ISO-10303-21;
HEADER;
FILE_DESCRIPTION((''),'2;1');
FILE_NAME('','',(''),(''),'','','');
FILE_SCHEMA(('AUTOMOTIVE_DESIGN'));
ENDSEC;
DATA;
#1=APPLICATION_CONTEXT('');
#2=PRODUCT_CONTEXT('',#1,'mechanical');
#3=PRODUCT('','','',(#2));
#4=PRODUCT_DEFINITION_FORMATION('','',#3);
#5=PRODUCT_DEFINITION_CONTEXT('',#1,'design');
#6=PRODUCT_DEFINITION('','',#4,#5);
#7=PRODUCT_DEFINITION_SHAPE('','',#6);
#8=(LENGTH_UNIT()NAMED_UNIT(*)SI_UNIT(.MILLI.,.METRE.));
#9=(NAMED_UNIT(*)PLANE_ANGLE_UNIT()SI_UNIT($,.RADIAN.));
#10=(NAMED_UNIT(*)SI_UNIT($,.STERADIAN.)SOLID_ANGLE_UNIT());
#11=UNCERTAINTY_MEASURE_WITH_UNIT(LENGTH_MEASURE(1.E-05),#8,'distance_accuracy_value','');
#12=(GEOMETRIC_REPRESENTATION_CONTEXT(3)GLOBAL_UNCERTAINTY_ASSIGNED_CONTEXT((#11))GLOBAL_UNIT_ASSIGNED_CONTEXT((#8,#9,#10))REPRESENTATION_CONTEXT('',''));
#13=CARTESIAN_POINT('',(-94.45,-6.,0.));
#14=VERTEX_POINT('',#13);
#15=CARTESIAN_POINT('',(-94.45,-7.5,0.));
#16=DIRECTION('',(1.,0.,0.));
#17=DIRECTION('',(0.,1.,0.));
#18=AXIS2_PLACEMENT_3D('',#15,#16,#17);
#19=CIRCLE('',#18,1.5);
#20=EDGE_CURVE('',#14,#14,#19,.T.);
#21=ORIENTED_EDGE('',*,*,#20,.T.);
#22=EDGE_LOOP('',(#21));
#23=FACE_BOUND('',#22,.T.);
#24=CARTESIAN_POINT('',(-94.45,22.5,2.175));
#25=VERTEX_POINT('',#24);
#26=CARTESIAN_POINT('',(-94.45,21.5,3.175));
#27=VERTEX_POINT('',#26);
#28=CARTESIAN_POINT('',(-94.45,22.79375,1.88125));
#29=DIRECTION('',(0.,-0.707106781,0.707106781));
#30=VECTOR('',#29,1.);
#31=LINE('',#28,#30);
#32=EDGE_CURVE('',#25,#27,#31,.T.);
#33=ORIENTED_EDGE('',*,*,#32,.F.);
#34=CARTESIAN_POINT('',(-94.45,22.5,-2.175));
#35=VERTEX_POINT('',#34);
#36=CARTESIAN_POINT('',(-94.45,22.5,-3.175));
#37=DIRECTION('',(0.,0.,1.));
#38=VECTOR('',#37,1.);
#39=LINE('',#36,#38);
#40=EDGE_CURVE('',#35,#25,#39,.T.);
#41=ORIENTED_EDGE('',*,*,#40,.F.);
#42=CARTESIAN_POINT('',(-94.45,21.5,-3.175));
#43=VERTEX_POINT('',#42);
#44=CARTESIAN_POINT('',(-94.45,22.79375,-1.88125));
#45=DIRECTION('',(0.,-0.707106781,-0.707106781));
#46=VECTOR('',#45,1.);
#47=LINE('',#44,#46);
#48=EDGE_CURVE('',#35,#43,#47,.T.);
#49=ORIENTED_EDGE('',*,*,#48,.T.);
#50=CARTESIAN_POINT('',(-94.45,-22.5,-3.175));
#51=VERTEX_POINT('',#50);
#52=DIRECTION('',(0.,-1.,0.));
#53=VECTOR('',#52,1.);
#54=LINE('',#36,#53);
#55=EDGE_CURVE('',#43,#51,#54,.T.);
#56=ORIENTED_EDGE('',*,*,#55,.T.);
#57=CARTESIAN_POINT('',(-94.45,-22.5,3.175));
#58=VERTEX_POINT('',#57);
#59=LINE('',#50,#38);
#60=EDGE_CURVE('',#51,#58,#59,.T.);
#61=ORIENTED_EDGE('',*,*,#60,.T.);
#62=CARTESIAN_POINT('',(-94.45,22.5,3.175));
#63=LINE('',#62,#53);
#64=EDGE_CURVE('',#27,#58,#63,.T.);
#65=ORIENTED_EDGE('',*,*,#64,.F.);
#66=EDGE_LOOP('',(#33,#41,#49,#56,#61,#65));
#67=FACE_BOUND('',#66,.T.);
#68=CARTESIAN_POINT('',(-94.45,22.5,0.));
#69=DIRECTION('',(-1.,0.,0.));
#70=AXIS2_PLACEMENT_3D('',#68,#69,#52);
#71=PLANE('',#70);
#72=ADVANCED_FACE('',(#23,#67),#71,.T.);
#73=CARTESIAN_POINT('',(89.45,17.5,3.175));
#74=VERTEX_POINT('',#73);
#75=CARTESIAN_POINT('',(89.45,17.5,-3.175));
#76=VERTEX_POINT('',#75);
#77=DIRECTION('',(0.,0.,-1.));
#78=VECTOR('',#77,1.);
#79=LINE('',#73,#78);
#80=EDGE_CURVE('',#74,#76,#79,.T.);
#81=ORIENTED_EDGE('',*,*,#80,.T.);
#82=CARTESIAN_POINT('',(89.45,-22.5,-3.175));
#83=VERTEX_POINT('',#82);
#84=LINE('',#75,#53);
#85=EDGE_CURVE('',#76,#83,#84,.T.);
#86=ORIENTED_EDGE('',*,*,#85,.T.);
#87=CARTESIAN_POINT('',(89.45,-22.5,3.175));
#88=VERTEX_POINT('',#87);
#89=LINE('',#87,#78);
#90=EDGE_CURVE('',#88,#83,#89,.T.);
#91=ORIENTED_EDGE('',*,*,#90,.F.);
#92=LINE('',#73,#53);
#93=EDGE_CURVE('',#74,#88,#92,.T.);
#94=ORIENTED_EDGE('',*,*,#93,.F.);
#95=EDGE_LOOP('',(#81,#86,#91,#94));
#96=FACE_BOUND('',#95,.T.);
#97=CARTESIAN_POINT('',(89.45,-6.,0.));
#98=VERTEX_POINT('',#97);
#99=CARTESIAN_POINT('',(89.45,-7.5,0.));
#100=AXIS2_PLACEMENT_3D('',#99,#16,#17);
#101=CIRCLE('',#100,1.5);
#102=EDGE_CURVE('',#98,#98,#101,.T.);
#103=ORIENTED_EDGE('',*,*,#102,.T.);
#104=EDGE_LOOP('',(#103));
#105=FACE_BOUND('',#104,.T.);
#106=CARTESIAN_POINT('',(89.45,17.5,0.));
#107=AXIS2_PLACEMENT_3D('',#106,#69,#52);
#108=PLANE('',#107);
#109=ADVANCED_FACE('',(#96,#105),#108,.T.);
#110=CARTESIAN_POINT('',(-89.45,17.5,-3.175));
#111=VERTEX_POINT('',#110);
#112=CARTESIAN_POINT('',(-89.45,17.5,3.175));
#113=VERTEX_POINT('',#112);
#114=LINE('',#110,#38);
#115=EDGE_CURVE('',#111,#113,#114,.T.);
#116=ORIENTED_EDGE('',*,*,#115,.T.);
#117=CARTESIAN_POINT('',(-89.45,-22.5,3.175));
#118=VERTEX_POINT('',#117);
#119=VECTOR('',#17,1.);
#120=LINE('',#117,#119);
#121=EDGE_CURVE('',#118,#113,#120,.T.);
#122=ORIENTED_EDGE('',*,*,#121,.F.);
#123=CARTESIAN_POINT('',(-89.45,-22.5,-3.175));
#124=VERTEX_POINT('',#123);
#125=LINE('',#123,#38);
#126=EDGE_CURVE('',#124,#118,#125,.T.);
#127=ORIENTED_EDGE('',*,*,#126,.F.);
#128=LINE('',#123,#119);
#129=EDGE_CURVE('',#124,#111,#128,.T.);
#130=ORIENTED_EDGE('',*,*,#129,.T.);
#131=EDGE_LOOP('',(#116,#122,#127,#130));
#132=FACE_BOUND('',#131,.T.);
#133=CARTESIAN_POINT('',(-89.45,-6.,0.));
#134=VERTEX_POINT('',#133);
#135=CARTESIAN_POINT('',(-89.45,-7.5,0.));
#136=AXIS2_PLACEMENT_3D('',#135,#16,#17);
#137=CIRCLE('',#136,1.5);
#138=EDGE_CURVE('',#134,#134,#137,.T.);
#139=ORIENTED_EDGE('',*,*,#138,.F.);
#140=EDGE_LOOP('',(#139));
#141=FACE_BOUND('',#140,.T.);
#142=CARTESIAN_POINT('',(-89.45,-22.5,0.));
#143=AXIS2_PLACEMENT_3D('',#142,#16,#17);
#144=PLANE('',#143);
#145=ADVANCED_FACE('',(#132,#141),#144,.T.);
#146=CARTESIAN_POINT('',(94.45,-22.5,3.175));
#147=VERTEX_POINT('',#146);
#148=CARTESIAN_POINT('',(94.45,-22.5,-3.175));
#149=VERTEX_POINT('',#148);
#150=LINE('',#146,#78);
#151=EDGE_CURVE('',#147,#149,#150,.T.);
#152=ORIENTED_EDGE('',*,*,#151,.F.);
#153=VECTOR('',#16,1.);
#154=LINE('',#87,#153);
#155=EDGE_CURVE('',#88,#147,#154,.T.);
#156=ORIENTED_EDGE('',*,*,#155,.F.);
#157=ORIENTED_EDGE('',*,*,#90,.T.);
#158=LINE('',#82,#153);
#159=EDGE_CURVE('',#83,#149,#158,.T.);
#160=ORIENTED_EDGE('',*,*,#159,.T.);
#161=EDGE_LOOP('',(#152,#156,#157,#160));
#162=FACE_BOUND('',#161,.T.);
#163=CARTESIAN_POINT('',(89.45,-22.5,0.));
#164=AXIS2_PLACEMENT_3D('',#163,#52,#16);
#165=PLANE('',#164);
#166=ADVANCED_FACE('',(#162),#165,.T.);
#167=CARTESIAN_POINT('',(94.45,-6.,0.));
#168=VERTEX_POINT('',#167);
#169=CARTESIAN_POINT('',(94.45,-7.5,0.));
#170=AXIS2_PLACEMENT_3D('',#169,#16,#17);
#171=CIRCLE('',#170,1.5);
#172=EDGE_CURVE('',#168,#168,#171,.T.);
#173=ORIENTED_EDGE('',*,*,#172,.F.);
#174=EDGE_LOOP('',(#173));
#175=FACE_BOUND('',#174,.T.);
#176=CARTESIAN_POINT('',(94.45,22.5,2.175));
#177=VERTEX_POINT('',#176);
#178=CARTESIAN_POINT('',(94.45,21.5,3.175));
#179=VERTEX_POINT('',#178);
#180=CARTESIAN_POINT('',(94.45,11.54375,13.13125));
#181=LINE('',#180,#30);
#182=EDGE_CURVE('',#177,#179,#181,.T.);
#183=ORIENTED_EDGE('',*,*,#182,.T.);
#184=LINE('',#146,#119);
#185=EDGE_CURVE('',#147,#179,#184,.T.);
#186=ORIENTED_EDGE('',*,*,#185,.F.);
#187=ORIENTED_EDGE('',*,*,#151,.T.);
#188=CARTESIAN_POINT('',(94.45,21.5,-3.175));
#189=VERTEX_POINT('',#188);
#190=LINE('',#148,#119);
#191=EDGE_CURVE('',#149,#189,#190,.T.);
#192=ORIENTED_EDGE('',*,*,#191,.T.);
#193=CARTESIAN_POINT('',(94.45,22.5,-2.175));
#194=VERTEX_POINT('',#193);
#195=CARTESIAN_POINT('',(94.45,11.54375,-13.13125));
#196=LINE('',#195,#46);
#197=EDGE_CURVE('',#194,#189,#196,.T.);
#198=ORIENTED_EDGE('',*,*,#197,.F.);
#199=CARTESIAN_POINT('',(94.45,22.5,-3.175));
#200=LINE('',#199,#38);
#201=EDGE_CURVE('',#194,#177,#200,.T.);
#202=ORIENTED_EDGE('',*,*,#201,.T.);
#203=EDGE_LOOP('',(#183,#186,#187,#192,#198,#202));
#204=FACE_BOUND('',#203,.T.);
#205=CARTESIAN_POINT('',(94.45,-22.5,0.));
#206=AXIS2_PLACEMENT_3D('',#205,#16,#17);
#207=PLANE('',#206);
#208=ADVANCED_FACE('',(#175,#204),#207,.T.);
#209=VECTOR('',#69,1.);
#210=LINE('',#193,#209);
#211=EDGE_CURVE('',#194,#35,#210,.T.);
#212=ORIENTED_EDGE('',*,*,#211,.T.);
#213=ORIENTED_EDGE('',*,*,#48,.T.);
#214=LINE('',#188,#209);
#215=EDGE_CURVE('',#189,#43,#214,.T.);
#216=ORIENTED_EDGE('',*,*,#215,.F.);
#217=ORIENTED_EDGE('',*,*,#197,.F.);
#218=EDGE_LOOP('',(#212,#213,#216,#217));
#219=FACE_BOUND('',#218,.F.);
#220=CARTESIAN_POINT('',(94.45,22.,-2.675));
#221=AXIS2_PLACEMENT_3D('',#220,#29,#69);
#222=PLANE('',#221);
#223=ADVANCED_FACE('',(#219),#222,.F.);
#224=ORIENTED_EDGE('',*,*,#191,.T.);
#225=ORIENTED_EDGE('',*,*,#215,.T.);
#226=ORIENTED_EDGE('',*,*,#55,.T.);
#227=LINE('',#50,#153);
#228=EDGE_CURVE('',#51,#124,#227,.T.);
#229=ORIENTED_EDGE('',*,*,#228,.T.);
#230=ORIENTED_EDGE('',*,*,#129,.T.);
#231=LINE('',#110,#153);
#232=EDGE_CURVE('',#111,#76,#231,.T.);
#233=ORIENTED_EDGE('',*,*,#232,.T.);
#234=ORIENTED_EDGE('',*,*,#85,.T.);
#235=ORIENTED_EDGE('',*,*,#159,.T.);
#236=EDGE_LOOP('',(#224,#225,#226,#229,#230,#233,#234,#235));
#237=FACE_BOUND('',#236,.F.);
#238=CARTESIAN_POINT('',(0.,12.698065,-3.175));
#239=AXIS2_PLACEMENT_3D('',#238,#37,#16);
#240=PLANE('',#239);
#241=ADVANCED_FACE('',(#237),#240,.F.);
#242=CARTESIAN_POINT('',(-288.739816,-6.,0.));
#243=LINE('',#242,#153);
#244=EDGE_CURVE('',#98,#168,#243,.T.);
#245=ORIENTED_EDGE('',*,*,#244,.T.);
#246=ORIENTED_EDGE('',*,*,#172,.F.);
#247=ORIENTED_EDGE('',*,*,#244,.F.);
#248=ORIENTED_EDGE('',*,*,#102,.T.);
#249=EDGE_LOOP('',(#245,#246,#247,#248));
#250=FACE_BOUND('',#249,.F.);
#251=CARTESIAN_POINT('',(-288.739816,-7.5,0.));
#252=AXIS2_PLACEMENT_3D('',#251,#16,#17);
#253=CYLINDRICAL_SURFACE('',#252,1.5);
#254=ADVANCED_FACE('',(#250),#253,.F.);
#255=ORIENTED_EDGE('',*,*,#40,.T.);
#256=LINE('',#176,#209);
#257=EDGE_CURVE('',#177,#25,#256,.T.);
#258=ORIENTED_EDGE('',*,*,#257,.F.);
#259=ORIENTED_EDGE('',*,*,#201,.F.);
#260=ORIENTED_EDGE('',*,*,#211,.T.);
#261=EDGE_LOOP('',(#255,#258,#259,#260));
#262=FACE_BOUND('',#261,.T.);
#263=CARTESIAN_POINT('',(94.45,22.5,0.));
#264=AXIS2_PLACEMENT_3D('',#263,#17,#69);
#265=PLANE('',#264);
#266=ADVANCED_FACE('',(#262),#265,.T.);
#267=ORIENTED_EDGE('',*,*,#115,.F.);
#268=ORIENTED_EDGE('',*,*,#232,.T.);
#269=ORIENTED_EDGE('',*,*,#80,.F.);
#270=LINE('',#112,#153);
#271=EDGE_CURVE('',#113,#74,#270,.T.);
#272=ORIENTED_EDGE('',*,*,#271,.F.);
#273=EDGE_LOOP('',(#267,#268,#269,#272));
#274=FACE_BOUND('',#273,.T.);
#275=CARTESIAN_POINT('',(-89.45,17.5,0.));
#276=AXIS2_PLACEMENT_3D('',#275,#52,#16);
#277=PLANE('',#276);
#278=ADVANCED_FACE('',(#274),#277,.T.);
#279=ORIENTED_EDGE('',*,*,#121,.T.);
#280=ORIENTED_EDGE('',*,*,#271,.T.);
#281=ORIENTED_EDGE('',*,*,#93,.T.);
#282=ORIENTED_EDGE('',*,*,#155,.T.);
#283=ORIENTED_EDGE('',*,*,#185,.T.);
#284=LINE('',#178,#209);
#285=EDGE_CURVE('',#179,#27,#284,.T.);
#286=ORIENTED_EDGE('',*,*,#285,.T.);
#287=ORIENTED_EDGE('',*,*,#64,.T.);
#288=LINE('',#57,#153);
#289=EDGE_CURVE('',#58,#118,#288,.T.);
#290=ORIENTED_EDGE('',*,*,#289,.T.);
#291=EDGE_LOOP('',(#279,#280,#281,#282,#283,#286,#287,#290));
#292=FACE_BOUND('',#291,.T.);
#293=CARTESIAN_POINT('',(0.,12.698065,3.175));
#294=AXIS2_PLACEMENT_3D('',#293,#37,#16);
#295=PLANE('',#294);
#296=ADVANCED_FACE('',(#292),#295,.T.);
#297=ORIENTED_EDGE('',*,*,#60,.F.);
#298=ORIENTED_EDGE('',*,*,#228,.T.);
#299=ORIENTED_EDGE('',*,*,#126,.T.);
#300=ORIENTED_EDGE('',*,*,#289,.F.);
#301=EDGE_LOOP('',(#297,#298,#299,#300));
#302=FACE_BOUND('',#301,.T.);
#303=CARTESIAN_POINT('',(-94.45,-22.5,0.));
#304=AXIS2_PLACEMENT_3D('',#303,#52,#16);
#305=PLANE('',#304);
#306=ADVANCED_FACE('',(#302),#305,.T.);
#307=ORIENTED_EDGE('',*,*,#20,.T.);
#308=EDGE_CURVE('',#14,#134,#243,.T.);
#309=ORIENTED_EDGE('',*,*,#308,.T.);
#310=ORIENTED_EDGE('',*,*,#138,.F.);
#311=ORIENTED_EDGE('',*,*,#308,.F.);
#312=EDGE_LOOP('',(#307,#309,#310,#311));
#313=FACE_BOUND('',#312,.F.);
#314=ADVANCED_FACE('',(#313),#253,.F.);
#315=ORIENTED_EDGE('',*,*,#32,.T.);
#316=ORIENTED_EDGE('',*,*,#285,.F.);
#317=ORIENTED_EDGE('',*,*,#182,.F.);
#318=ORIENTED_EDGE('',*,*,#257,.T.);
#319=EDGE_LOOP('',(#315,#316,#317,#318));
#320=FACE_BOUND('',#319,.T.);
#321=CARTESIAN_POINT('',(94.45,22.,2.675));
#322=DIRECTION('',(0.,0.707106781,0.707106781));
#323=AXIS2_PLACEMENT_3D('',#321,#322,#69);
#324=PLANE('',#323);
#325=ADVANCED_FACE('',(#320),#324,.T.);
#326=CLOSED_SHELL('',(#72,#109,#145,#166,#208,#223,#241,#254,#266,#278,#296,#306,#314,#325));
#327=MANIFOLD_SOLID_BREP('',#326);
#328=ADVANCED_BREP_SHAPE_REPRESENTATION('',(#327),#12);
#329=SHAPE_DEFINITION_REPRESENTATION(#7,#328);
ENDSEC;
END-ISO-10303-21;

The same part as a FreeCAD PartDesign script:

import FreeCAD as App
import Part
import Sketcher
Q = App.Units.Quantity


def edges_at(feature, points):
    """Names of the edges that pass closest to the given points."""
    edges = feature.Shape.Edges
    near = lambda p: min(range(len(edges)), key=lambda i: edges[i].distToShape(Part.Vertex(*p))[0])
    return sorted({f"Edge{near(p) + 1}" for p in points})

doc = App.newDocument("Part")
body = doc.addObject("PartDesign::Body", "Body")

sketch1 = doc.addObject("Sketcher::SketchObject", "Sketch")
body.addObject(sketch1)
sketch1.AttachmentSupport = (doc.XY_Plane, [""])
sketch1.MapMode = "FlatFace"
sketch1.addGeometry([
    Part.LineSegment(App.Vector(94, -22, 0), App.Vector(94, 22, 0)),
    Part.LineSegment(App.Vector(94, 22, 0), App.Vector(-94, 22, 0)),
    Part.LineSegment(App.Vector(-94, 22, 0), App.Vector(-94, -22, 0)),
    Part.LineSegment(App.Vector(-94, -22, 0), App.Vector(-89, -22, 0)),
    Part.LineSegment(App.Vector(-89, -22, 0), App.Vector(-89, 18, 0)),
    Part.LineSegment(App.Vector(-89, 18, 0), App.Vector(89, 18, 0)),
    Part.LineSegment(App.Vector(89, 18, 0), App.Vector(89, -22, 0)),
    Part.LineSegment(App.Vector(89, -22, 0), App.Vector(94, -22, 0)),
], False)
sketch1.addConstraint([
    Sketcher.Constraint("Coincident", 0, 2, 1, 1),
    Sketcher.Constraint("Coincident", 1, 2, 2, 1),
    Sketcher.Constraint("Coincident", 2, 2, 3, 1),
    Sketcher.Constraint("Coincident", 3, 2, 4, 1),
    Sketcher.Constraint("Coincident", 4, 2, 5, 1),
    Sketcher.Constraint("Coincident", 5, 2, 6, 1),
    Sketcher.Constraint("Coincident", 6, 2, 7, 1),
    Sketcher.Constraint("Coincident", 7, 2, 0, 1),
    Sketcher.Constraint("Vertical", 0),
    Sketcher.Constraint("Horizontal", 1),
    Sketcher.Constraint("Vertical", 2),
    Sketcher.Constraint("Horizontal", 3),
    Sketcher.Constraint("Vertical", 4),
    Sketcher.Constraint("Horizontal", 5),
    Sketcher.Constraint("Vertical", 6),
    Sketcher.Constraint("Horizontal", 7),
    Sketcher.Constraint("Symmetric", 0, 2, 2, 2, -1, 1),
    Sketcher.Constraint("Symmetric", 3, 2, 6, 2, -2),
    Sketcher.Constraint("DistanceX", 3, 1, 3, 2, Q("5 mm")),
    Sketcher.Constraint("DistanceY", 0, 1, 0, 2, Q("45 mm")),
    Sketcher.Constraint("DistanceY", 4, 1, 4, 2, Q("40 mm")),
    Sketcher.Constraint("DistanceX", 1, 2, 1, 1, Q("188.9 mm")),
])
pad1 = doc.addObject("PartDesign::Pad", "Pad")
body.addObject(pad1)
pad1.Profile = sketch1
pad1.Length = 6.35
pad1.Midplane = True

sketch2 = doc.addObject("Sketcher::SketchObject", "Sketch001")
body.addObject(sketch2)
sketch2.AttachmentSupport = (doc.YZ_Plane, [""])
sketch2.MapMode = "FlatFace"
sketch2.AttachmentOffset = App.Placement(App.Vector(0, 0, -94.45), App.Rotation())
sketch2.addGeometry(Part.Circle(App.Vector(-7.5, 0, 0), App.Vector(0, 0, 1), 1.5), False)
sketch2.addConstraint([
    Sketcher.Constraint("PointOnObject", 0, 3, -1),
    Sketcher.Constraint("Diameter", 0, Q("3 mm")),
    Sketcher.Constraint("DistanceX", 0, 3, -1, 1, Q("7.5 mm")),
])
doc.recompute()
hole = doc.addObject("PartDesign::Hole", "Hole")
body.addObject(hole)
hole.Profile = sketch2
hole.ThreadType = "None"
hole.Diameter = 3
hole.DepthType = "ThroughAll"
hole.Reversed = True
doc.recompute()

chamfer = doc.addObject("PartDesign::Chamfer", "Chamfer")
body.addObject(chamfer)
chamfer.Base = (hole, edges_at(hole, [(0, 22.5, 3.175)]))
chamfer.ChamferType = "Two distances"
chamfer.Size = 1
chamfer.Size2 = 1
doc.recompute()

chamfer2 = doc.addObject("PartDesign::Chamfer", "Chamfer001")
body.addObject(chamfer2)
chamfer2.Base = (chamfer, edges_at(chamfer, [(0, 22.5, -3.175)]))
chamfer2.ChamferType = "Two distances"
chamfer2.Size = 1
chamfer2.Size2 = 1

doc.recompute()
